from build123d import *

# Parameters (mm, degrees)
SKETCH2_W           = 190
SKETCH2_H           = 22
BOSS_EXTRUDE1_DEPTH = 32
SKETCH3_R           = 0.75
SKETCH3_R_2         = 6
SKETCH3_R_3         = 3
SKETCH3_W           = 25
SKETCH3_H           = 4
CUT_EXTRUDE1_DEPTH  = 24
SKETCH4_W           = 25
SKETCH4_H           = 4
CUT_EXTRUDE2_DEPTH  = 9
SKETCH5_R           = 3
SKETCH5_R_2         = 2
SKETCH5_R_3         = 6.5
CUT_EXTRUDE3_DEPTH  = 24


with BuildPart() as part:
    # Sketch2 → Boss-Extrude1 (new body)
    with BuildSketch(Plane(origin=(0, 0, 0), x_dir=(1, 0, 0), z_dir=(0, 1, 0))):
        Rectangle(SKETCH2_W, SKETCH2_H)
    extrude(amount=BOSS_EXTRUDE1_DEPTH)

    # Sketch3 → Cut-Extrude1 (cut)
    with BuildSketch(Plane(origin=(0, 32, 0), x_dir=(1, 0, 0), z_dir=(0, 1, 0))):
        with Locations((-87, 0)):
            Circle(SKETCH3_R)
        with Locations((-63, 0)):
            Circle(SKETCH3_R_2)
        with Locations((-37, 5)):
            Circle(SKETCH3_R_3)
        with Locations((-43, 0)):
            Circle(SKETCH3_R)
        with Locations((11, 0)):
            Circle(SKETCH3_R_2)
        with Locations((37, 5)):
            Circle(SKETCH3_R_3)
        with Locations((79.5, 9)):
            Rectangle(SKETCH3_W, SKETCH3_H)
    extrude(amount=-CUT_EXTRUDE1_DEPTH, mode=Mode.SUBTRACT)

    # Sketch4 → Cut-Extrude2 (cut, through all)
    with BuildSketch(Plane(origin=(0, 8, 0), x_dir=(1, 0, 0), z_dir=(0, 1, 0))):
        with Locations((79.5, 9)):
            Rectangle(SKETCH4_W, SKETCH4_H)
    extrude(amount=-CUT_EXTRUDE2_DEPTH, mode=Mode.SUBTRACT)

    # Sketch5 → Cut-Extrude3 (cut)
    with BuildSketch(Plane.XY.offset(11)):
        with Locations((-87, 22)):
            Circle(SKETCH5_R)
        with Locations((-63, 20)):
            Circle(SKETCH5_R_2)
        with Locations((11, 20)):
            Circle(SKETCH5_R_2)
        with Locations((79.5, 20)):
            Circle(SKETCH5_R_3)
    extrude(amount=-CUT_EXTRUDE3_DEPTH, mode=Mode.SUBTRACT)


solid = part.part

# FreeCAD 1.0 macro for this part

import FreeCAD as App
import Part
import Sketcher
from FreeCAD import Vector
Q = App.Units.Quantity

doc = App.newDocument("Part")
body = doc.addObject("PartDesign::Body", "Body")

sketch1 = body.newObject("Sketcher::SketchObject", "Sketch")
sketch1.AttachmentSupport = (doc.getObject("XZ_Plane"), [""])
sketch1.MapMode = "FlatFace"
sketch1.addGeometry([
    Part.LineSegment(Vector(-95, -11, 0), Vector(-95, 11, 0)),
    Part.LineSegment(Vector(-95, 11, 0), Vector(95, 11, 0)),
    Part.LineSegment(Vector(95, 11, 0), Vector(95, -11, 0)),
    Part.LineSegment(Vector(95, -11, 0), Vector(-95, -11, 0)),
], False)
sketch1.addConstraint([
    Sketcher.Constraint("Coincident", 0, 2, 1, 1),
    Sketcher.Constraint("Coincident", 1, 2, 2, 1),
    Sketcher.Constraint("Coincident", 2, 2, 3, 1),
    Sketcher.Constraint("Coincident", 3, 2, 0, 1),
    Sketcher.Constraint("Vertical", 0),
    Sketcher.Constraint("Horizontal", 1),
    Sketcher.Constraint("Vertical", 2),
    Sketcher.Constraint("Horizontal", 3),
    Sketcher.Constraint("Symmetric", 0, 2, 2, 2, -1, 1),
    Sketcher.Constraint("DistanceX", 1, 1, 1, 2, Q("190 mm")),
    Sketcher.Constraint("DistanceY", 0, 1, 0, 2, Q("22 mm")),
])
pad1 = body.newObject("PartDesign::Pad", "Pad")
pad1.Profile = sketch1
pad1.Length = 32
pad1.Reversed = True

sketch2 = body.newObject("Sketcher::SketchObject", "Sketch001")
sketch2.AttachmentSupport = (doc.getObject("XZ_Plane"), [""])
sketch2.MapMode = "FlatFace"
sketch2.AttachmentOffset = App.Placement(Vector(0, 0, -32), App.Rotation())
sketch2.addGeometry([
    Part.Circle(Vector(-87, 0, 0), Vector(0, 0, 1), 0.8),
    Part.Circle(Vector(-63, 0, 0), Vector(0, 0, 1), 6),
    Part.Circle(Vector(-37, -5, 0), Vector(0, 0, 1), 3),
    Part.Circle(Vector(-43, 0, 0), Vector(0, 0, 1), 0.8),
    Part.Circle(Vector(11, 0, 0), Vector(0, 0, 1), 6),
    Part.Circle(Vector(37, -5, 0), Vector(0, 0, 1), 3),
    Part.LineSegment(Vector(67, -11, 0), Vector(67, -7, 0)),
    Part.LineSegment(Vector(67, -7, 0), Vector(92, -7, 0)),
    Part.LineSegment(Vector(92, -7, 0), Vector(92, -11, 0)),
    Part.LineSegment(Vector(92, -11, 0), Vector(67, -11, 0)),
], False)
sketch2.addConstraint([
    Sketcher.Constraint("Coincident", 6, 2, 7, 1),
    Sketcher.Constraint("Coincident", 7, 2, 8, 1),
    Sketcher.Constraint("Coincident", 8, 2, 9, 1),
    Sketcher.Constraint("Coincident", 9, 2, 6, 1),
    Sketcher.Constraint("Vertical", 6),
    Sketcher.Constraint("Horizontal", 7),
    Sketcher.Constraint("Vertical", 8),
    Sketcher.Constraint("Horizontal", 9),
    Sketcher.Constraint("Equal", 0, 3),
    Sketcher.Constraint("Equal", 1, 4),
    Sketcher.Constraint("Equal", 2, 5),
    Sketcher.Constraint("Symmetric", 2, 3, 5, 3, -2),
    Sketcher.Constraint("PointOnObject", 0, 3, -1),
    Sketcher.Constraint("PointOnObject", 1, 3, -1),
    Sketcher.Constraint("PointOnObject", 3, 3, -1),
    Sketcher.Constraint("PointOnObject", 4, 3, -1),
    Sketcher.Constraint("Diameter", 1, Q("12 mm")),
    Sketcher.Constraint("Diameter", 2, Q("6 mm")),
    Sketcher.Constraint("Diameter", 0, Q("1.5 mm")),
    Sketcher.Constraint("DistanceX", 7, 1, 7, 2, Q("25 mm")),
    Sketcher.Constraint("DistanceY", 6, 1, 6, 2, Q("4 mm")),
    Sketcher.Constraint("DistanceX", 0, 3, -1, 1, Q("87 mm")),
    Sketcher.Constraint("DistanceX", 1, 3, -1, 1, Q("63 mm")),
    Sketcher.Constraint("DistanceX", 2, 3, -1, 1, Q("37 mm")),
    Sketcher.Constraint("DistanceY", 2, 3, -1, 1, Q("5 mm")),
    Sketcher.Constraint("DistanceX", 3, 3, -1, 1, Q("43 mm")),
    Sketcher.Constraint("DistanceX", -1, 1, 4, 3, Q("11 mm")),
    Sketcher.Constraint("DistanceX", -1, 1, 6, 2, Q("67 mm")),
    Sketcher.Constraint("DistanceY", 6, 2, -1, 1, Q("7 mm")),
])
pocket1 = body.newObject("PartDesign::Pocket", "Pocket")
pocket1.Profile = sketch2
pocket1.Length = 24
pocket1.Reversed = True

sketch3 = body.newObject("Sketcher::SketchObject", "Sketch002")
sketch3.AttachmentSupport = (doc.getObject("XZ_Plane"), [""])
sketch3.MapMode = "FlatFace"
sketch3.AttachmentOffset = App.Placement(Vector(0, 0, -8), App.Rotation())
sketch3.addGeometry([
    Part.LineSegment(Vector(67, -11, 0), Vector(67, -7, 0)),
    Part.LineSegment(Vector(67, -7, 0), Vector(92, -7, 0)),
    Part.LineSegment(Vector(92, -7, 0), Vector(92, -11, 0)),
    Part.LineSegment(Vector(92, -11, 0), Vector(67, -11, 0)),
], False)
sketch3.addConstraint([
    Sketcher.Constraint("Coincident", 0, 2, 1, 1),
    Sketcher.Constraint("Coincident", 1, 2, 2, 1),
    Sketcher.Constraint("Coincident", 2, 2, 3, 1),
    Sketcher.Constraint("Coincident", 3, 2, 0, 1),
    Sketcher.Constraint("Vertical", 0),
    Sketcher.Constraint("Horizontal", 1),
    Sketcher.Constraint("Vertical", 2),
    Sketcher.Constraint("Horizontal", 3),
    Sketcher.Constraint("DistanceX", 1, 1, 1, 2, Q("25 mm")),
    Sketcher.Constraint("DistanceY", 0, 1, 0, 2, Q("4 mm")),
    Sketcher.Constraint("DistanceX", -1, 1, 0, 2, Q("67 mm")),
    Sketcher.Constraint("DistanceY", 0, 2, -1, 1, Q("7 mm")),
])
pocket2 = body.newObject("PartDesign::Pocket", "Pocket001")
pocket2.Profile = sketch3
pocket2.Type = "ThroughAll"
pocket2.Reversed = True

sketch4 = body.newObject("Sketcher::SketchObject", "Sketch003")
sketch4.AttachmentSupport = (doc.getObject("XY_Plane"), [""])
sketch4.MapMode = "FlatFace"
sketch4.AttachmentOffset = App.Placement(Vector(0, 0, 11), App.Rotation())
sketch4.addGeometry([
    Part.Circle(Vector(-87, 22, 0), Vector(0, 0, 1), 3),
    Part.Circle(Vector(-63, 20, 0), Vector(0, 0, 1), 2),
    Part.Circle(Vector(11, 20, 0), Vector(0, 0, 1), 2),
    Part.Circle(Vector(79.5, 20, 0), Vector(0, 0, 1), 6.5),
], False)
sketch4.addConstraint([
    Sketcher.Constraint("Equal", 1, 2),
    Sketcher.Constraint("Horizontal", 1, 3, 2, 3),
    Sketcher.Constraint("Horizontal", 2, 3, 3, 3),
    Sketcher.Constraint("Diameter", 0, Q("6 mm")),
    Sketcher.Constraint("Diameter", 1, Q("4 mm")),
    Sketcher.Constraint("Diameter", 3, Q("13 mm")),
    Sketcher.Constraint("DistanceX", 0, 3, -1, 1, Q("87 mm")),
    Sketcher.Constraint("DistanceY", -1, 1, 0, 3, Q("22 mm")),
    Sketcher.Constraint("DistanceX", 1, 3, -1, 1, Q("63 mm")),
    Sketcher.Constraint("DistanceY", -1, 1, 1, 3, Q("20 mm")),
    Sketcher.Constraint("DistanceX", -1, 1, 2, 3, Q("11 mm")),
    Sketcher.Constraint("DistanceX", -1, 1, 3, 3, Q("79.5 mm")),
])
pocket3 = body.newObject("PartDesign::Pocket", "Pocket002")
pocket3.Profile = sketch4
pocket3.Length = 24

doc.recompute()
